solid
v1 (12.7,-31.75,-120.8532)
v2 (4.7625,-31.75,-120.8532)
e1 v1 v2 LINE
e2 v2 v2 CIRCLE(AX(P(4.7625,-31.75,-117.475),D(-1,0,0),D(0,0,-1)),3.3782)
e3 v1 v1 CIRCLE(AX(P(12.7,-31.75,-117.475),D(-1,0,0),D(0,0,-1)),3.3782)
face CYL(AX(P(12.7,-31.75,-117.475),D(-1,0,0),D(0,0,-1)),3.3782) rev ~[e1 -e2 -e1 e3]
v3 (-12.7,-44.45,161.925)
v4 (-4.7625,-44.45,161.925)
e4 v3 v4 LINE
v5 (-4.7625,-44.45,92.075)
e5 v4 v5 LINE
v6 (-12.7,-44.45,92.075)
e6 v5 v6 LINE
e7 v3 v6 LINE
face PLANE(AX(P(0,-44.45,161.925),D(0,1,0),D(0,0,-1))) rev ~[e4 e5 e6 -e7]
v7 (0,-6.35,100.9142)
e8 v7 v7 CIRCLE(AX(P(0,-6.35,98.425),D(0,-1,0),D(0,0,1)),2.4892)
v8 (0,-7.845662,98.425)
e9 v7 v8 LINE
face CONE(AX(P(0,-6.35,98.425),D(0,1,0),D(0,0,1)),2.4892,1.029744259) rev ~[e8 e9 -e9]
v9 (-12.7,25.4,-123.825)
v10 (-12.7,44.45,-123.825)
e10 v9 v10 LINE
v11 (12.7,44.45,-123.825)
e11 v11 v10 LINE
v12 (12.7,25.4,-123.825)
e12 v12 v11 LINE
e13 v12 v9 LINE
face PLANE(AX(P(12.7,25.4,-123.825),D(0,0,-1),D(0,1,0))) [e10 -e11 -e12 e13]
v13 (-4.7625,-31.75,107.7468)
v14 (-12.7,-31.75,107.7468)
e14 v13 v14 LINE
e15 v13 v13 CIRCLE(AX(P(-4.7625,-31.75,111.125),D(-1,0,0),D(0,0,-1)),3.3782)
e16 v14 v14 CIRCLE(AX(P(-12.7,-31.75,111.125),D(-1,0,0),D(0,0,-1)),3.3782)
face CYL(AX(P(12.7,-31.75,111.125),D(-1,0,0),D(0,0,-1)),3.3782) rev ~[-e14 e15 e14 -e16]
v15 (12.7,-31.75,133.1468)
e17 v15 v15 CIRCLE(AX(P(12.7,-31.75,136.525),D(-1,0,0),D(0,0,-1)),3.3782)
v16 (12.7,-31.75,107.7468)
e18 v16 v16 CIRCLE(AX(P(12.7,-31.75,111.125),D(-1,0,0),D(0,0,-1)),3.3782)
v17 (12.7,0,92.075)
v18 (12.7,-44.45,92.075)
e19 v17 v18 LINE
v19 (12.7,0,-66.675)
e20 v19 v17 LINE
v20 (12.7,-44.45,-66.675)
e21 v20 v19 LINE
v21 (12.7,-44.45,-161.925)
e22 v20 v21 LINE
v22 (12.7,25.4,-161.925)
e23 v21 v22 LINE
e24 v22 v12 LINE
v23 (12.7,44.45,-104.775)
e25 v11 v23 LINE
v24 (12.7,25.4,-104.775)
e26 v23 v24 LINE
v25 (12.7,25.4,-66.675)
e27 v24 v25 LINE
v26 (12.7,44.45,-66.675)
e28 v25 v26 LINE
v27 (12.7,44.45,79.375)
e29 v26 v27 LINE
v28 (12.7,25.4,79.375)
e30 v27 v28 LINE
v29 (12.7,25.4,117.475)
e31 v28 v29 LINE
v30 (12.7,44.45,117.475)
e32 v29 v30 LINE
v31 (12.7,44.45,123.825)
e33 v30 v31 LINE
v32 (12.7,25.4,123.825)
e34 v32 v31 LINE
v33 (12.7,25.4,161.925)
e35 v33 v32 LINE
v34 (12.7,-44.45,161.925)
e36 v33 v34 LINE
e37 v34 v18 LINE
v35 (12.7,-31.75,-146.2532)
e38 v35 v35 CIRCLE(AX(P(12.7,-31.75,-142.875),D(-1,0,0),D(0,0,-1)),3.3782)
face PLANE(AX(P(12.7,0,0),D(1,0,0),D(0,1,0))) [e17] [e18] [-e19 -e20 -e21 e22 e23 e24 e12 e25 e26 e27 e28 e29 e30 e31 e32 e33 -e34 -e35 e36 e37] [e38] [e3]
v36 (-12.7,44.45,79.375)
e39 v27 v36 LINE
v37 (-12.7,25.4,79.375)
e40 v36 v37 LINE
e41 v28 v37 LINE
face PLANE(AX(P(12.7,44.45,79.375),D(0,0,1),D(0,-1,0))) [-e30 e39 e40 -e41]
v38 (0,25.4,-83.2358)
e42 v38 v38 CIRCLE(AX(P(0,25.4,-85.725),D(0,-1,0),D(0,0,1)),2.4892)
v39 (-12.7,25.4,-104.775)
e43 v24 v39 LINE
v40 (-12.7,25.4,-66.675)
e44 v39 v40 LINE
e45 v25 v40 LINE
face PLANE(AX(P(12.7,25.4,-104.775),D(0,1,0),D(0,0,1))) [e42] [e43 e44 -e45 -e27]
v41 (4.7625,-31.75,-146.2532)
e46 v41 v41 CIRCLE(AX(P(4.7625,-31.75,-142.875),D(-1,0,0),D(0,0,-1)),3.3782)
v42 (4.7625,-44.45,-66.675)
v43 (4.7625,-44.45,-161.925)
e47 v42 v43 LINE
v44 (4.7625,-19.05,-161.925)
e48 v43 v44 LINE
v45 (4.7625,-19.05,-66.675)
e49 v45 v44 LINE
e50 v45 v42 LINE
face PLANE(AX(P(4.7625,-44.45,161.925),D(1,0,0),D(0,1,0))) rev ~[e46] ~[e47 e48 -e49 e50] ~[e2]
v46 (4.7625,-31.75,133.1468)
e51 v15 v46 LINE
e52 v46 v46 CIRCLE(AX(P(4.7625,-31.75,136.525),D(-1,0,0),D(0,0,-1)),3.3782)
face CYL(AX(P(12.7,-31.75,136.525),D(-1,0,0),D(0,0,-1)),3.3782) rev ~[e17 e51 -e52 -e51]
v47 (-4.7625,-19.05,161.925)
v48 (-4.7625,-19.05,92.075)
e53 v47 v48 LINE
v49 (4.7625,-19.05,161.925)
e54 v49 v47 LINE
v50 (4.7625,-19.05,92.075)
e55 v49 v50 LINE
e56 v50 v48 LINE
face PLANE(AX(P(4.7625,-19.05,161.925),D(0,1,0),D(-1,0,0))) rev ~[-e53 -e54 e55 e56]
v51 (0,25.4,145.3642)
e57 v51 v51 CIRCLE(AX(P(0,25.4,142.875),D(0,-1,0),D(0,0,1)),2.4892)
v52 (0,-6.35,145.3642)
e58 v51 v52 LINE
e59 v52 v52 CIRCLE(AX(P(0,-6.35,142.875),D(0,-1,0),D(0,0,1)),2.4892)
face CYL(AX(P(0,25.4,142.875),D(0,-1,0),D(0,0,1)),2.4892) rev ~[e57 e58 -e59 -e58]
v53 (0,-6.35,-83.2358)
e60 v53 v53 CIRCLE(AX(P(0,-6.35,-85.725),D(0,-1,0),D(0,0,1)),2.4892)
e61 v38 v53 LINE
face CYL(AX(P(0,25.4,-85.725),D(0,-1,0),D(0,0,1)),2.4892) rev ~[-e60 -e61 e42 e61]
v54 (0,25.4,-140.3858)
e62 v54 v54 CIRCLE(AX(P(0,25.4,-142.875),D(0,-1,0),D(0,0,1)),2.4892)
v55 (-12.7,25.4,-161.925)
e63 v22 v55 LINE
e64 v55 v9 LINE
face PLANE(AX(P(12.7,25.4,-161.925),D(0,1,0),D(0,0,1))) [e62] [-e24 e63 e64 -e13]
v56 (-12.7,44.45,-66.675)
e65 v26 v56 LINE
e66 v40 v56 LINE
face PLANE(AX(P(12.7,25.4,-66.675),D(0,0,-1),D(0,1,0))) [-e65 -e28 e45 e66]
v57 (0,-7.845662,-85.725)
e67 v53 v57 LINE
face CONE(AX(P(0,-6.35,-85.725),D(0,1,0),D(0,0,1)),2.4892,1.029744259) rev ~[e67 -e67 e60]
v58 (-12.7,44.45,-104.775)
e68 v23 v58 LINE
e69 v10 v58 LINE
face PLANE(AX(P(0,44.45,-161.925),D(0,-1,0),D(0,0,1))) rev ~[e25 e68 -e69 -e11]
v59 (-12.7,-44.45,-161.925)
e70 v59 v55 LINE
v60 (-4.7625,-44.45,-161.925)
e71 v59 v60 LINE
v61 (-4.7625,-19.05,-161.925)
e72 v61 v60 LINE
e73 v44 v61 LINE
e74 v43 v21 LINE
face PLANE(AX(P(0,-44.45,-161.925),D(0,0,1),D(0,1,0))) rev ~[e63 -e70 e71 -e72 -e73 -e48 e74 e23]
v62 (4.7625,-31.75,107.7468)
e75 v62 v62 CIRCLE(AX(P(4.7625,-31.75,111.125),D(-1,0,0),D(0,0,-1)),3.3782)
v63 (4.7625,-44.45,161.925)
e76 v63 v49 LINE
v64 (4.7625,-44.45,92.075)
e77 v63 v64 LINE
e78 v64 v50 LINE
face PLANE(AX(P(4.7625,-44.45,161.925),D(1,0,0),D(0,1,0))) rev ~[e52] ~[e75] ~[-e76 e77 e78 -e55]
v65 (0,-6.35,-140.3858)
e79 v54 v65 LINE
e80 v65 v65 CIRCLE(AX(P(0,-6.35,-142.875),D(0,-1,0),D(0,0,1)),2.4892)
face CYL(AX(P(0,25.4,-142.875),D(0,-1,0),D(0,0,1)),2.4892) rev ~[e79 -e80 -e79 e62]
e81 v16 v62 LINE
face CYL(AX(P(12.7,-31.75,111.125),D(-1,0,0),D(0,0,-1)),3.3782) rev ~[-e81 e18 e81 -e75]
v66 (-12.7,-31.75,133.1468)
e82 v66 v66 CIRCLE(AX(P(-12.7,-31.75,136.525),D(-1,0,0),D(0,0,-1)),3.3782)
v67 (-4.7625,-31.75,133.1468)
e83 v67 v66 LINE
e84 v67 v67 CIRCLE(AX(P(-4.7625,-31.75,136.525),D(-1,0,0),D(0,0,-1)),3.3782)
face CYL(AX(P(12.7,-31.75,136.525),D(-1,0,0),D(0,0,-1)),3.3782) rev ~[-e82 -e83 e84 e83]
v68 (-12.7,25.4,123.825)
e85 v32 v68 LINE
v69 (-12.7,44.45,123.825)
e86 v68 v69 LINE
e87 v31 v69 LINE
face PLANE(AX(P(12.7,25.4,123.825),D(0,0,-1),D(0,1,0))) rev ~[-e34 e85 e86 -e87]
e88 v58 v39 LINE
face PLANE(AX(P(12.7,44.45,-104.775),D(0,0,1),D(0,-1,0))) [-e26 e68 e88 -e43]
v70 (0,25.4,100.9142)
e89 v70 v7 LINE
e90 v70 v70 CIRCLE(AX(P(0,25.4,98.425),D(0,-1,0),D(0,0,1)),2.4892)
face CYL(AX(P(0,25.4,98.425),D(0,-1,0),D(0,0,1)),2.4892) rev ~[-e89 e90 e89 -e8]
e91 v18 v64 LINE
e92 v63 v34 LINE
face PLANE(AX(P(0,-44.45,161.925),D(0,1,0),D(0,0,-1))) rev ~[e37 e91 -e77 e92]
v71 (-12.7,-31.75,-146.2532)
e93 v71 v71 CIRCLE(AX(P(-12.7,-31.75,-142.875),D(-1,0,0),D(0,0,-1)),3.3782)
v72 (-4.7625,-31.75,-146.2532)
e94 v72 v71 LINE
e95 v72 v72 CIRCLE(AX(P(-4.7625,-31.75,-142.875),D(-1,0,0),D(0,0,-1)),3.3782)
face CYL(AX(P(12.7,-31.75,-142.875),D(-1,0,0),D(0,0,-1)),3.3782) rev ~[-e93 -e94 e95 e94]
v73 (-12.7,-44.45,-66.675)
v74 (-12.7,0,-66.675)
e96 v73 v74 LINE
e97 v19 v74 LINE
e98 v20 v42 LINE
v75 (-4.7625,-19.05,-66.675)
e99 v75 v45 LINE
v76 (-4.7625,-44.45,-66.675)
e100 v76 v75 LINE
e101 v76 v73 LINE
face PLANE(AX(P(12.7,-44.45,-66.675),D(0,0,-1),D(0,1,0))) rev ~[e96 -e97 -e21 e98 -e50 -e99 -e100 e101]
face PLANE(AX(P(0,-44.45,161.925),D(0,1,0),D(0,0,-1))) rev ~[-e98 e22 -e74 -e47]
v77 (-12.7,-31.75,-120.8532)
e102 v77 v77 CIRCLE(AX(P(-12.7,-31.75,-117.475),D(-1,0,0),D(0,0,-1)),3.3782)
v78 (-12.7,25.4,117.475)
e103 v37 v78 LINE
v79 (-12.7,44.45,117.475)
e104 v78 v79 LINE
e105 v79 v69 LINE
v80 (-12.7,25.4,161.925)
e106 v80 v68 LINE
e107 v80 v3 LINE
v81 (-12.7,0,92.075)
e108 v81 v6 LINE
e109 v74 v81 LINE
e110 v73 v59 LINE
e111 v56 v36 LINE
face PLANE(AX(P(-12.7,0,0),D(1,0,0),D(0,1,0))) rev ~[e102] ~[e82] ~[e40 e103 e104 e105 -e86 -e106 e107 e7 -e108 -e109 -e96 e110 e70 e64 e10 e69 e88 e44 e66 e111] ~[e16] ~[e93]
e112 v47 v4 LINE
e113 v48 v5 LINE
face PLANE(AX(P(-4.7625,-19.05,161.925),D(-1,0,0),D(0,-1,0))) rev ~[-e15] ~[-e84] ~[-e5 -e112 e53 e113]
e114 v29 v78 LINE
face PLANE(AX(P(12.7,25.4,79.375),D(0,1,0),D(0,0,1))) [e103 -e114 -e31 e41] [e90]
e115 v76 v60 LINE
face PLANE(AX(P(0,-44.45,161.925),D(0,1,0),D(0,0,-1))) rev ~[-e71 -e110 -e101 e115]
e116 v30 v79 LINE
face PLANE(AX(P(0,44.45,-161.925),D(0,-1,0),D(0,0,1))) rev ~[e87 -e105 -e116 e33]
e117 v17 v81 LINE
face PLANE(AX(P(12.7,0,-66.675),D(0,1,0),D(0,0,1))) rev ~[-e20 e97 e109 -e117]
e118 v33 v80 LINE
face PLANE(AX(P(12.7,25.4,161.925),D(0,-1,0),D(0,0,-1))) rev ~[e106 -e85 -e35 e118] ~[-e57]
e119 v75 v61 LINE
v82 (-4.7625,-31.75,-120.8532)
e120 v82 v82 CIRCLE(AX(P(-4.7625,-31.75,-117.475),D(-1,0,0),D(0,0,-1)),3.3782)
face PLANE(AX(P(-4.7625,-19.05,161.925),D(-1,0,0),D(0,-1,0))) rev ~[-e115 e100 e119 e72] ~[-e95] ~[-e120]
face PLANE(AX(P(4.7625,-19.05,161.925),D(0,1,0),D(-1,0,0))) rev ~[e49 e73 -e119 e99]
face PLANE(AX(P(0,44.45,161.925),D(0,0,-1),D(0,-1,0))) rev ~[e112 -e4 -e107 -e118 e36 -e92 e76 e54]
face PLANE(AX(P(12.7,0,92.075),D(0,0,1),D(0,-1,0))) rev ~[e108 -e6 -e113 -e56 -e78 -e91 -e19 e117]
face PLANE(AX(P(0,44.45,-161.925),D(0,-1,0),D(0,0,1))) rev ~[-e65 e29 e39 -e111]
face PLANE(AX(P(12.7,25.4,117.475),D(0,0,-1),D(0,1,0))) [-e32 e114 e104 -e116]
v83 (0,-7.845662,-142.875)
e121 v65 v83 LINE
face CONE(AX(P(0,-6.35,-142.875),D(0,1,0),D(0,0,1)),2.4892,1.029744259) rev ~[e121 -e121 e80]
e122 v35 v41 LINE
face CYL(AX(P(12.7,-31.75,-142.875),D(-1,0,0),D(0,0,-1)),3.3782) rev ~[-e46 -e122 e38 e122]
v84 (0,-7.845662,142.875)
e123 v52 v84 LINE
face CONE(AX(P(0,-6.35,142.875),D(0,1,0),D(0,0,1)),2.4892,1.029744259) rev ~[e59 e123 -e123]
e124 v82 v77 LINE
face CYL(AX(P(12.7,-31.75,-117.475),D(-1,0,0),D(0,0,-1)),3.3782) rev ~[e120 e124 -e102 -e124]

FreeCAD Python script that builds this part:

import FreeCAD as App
import Part
import Sketcher
Q = App.Units.Quantity

doc = App.newDocument("Part")
params = doc.addObject("Spreadsheet::Sheet", "Params")
for row, (alias, value) in enumerate([
    ("sketch1_width", "3.5 in"),
    ("sketch1_height", "12.75 in"),
    ("pad1_length", "1 in"),
    ("sketch2_width", "1.75 in"),
    ("sketch2_height", "6.25 in"),
    ("sketch3_height", "1 in"),
    ("sketch4_diameter", "0.266 in"),
    ("hole_diameter", "0.266 in"),
    ("sketch5_height", "1.5 in"),
    ("sketch5_width", "0.75 in"),
    ("sketch6_diameter", "0.196 in"),
    ("hole2_diameter", "0.196 in"),
    ("hole2_depth", "1.25 in"),
], start=1):
    params.set(f"A{row}", alias)
    params.set(f"B{row}", "=" + value)
    params.setAlias(f"B{row}", alias)

body = doc.addObject("PartDesign::Body", "Body")

sketch1 = body.newObject("Sketcher::SketchObject", "Sketch")
sketch1.AttachmentSupport = (doc.getObject("YZ_Plane"), [""])
sketch1.MapMode = "FlatFace"
sketch1.addGeometry([
    Part.LineSegment(App.Vector(44, 162, 0), App.Vector(-44, 162, 0)),
    Part.LineSegment(App.Vector(-44, 162, 0), App.Vector(-44, -162, 0)),
    Part.LineSegment(App.Vector(-44, -162, 0), App.Vector(44, -162, 0)),
    Part.LineSegment(App.Vector(44, -162, 0), App.Vector(44, 162, 0)),
], False)
sketch1.addConstraint([
    Sketcher.Constraint("Coincident", 0, 2, 1, 1),
    Sketcher.Constraint("Coincident", 1, 2, 2, 1),
    Sketcher.Constraint("Coincident", 2, 2, 3, 1),
    Sketcher.Constraint("Coincident", 3, 2, 0, 1),
    Sketcher.Constraint("Horizontal", 0),
    Sketcher.Constraint("Vertical", 1),
    Sketcher.Constraint("Horizontal", 2),
    Sketcher.Constraint("Vertical", 3),
    Sketcher.Constraint("Symmetric", 0, 2, 2, 2, -1, 1),
    Sketcher.Constraint("DistanceX", 0, 2, 0, 1, Q("3.5 in")),
    Sketcher.Constraint("DistanceY", 1, 2, 1, 1, Q("12.75 in")),
])
sketch1.setExpression("Constraints[9]", "Params.sketch1_width")
sketch1.setExpression("Constraints[10]", "Params.sketch1_height")
pad1 = body.newObject("PartDesign::Pad", "Pad")
pad1.Profile = sketch1
pad1.setExpression("Length", "Params.pad1_length")
pad1.Midplane = True

sketch2 = body.newObject("Sketcher::SketchObject", "Sketch001")
sketch2.AttachmentSupport = (doc.getObject("YZ_Plane"), [""])
sketch2.MapMode = "FlatFace"
sketch2.AttachmentOffset = App.Placement(App.Vector(0, 0, 0.5 * 25.4), App.Rotation())
sketch2.addGeometry([
    Part.LineSegment(App.Vector(0, 92, 0), App.Vector(-44, 92, 0)),
    Part.LineSegment(App.Vector(-44, 92, 0), App.Vector(-44, -67, 0)),
    Part.LineSegment(App.Vector(-44, -67, 0), App.Vector(0, -67, 0)),
    Part.LineSegment(App.Vector(0, -67, 0), App.Vector(0, 92, 0)),
], False)
sketch2.addConstraint([
    Sketcher.Constraint("Coincident", 0, 2, 1, 1),
    Sketcher.Constraint("Coincident", 1, 2, 2, 1),
    Sketcher.Constraint("Coincident", 2, 2, 3, 1),
    Sketcher.Constraint("Coincident", 3, 2, 0, 1),
    Sketcher.Constraint("Horizontal", 0),
    Sketcher.Constraint("Vertical", 1),
    Sketcher.Constraint("Horizontal", 2),
    Sketcher.Constraint("Vertical", 3),
    Sketcher.Constraint("PointOnObject", 2, 2, -2),
    Sketcher.Constraint("DistanceX", 0, 2, 0, 1, Q("1.75 in")),
    Sketcher.Constraint("DistanceY", 1, 2, 1, 1, Q("6.25 in")),
    Sketcher.Constraint("DistanceY", -1, 1, 0, 2, Q("3.625 in")),
])
sketch2.setExpression("Constraints[9]", "Params.sketch2_width")
sketch2.setExpression("Constraints[10]", "Params.sketch2_height")
pocket1 = body.newObject("PartDesign::Pocket", "Pocket")
pocket1.Profile = sketch2
pocket1.Type = "ThroughAll"

sketch3 = body.newObject("Sketcher::SketchObject", "Sketch002")
sketch3.AttachmentSupport = (doc.getObject("XY_Plane"), [""])
sketch3.MapMode = "FlatFace"
sketch3.AttachmentOffset = App.Placement(App.Vector(0, 0, 6.375 * 25.4), App.Rotation())
sketch3.addGeometry([
    Part.LineSegment(App.Vector(-5, -19, 0), App.Vector(-5, -44, 0)),
    Part.LineSegment(App.Vector(-5, -44, 0), App.Vector(5, -44, 0)),
    Part.LineSegment(App.Vector(5, -44, 0), App.Vector(5, -19, 0)),
    Part.LineSegment(App.Vector(5, -19, 0), App.Vector(-5, -19, 0)),
], False)
sketch3.addConstraint([
    Sketcher.Constraint("Coincident", 0, 2, 1, 1),
    Sketcher.Constraint("Coincident", 1, 2, 2, 1),
    Sketcher.Constraint("Coincident", 2, 2, 3, 1),
    Sketcher.Constraint("Coincident", 3, 2, 0, 1),
    Sketcher.Constraint("Vertical", 0),
    Sketcher.Constraint("Horizontal", 1),
    Sketcher.Constraint("Vertical", 2),
    Sketcher.Constraint("Horizontal", 3),
    Sketcher.Constraint("DistanceY", 0, 2, 0, 1, Q("1 in")),
    Sketcher.Constraint("DistanceX", 0, 2, -1, 1, Q("0.1875 in")),
    Sketcher.Constraint("DistanceX", -1, 1, 1, 2, Q("0.1875 in")),
    Sketcher.Constraint("DistanceY", 0, 2, -1, 1, Q("1.75 in")),
])
sketch3.setExpression("Constraints[8]", "Params.sketch3_height")
pocket2 = body.newObject("PartDesign::Pocket", "Pocket001")
pocket2.Profile = sketch3
pocket2.Type = "ThroughAll"

sketch4 = body.newObject("Sketcher::SketchObject", "Sketch003")
sketch4.AttachmentSupport = (doc.getObject("YZ_Plane"), [""])
sketch4.MapMode = "FlatFace"
sketch4.AttachmentOffset = App.Placement(App.Vector(0, 0, 0.5 * 25.4), App.Rotation())
sketch4.addGeometry([
    Part.Circle(App.Vector(-31.8, 136.5, 0), App.Vector(0, 0, 1), 3.4),
    Part.Circle(App.Vector(-31.8, 111.1, 0), App.Vector(0, 0, 1), 3.4),
    Part.Circle(App.Vector(-31.8, -117.5, 0), App.Vector(0, 0, 1), 3.4),
    Part.Circle(App.Vector(-31.8, -142.9, 0), App.Vector(0, 0, 1), 3.4),
], False)
sketch4.addConstraint([
    Sketcher.Constraint("Equal", 0, 1),
    Sketcher.Constraint("Equal", 1, 2),
    Sketcher.Constraint("Equal", 2, 3),
    Sketcher.Constraint("Vertical", 0, 3, 1, 3),
    Sketcher.Constraint("Vertical", 1, 3, 2, 3),
    Sketcher.Constraint("Vertical", 2, 3, 3, 3),
    Sketcher.Constraint("Diameter", 0, Q("0.266 in")),
    Sketcher.Constraint("DistanceY", 1, 3, 0, 3, Q("1 in")),
    Sketcher.Constraint("DistanceY", 2, 3, 1, 3, Q("9 in")),
    Sketcher.Constraint("DistanceY", 3, 3, 2, 3, Q("1 in")),
    Sketcher.Constraint("DistanceX", 0, 3, -1, 1, Q("1.25 in")),
    Sketcher.Constraint("DistanceY", -1, 1, 0, 3, Q("5.375 in")),
])
sketch4.setExpression("Constraints[6]", "Params.sketch4_diameter")
doc.recompute()
hole = body.newObject("PartDesign::Hole", "Hole")
hole.Profile = sketch4
hole.ThreadType = "None"
hole.setExpression("Diameter", "Params.hole_diameter")
hole.DepthType = "ThroughAll"

sketch5 = body.newObject("Sketcher::SketchObject", "Sketch004")
sketch5.AttachmentSupport = (doc.getObject("YZ_Plane"), [""])
sketch5.MapMode = "FlatFace"
sketch5.AttachmentOffset = App.Placement(App.Vector(0, 0, 0.5 * 25.4), App.Rotation())
sketch5.addGeometry([
    Part.LineSegment(App.Vector(44, 124, 0), App.Vector(44, 162, 0)),
    Part.LineSegment(App.Vector(44, 162, 0), App.Vector(25, 162, 0)),
    Part.LineSegment(App.Vector(25, 162, 0), App.Vector(25, 124, 0)),
    Part.LineSegment(App.Vector(25, 124, 0), App.Vector(44, 124, 0)),
    Part.LineSegment(App.Vector(44, -162, 0), App.Vector(44, -124, 0)),
    Part.LineSegment(App.Vector(44, -124, 0), App.Vector(25, -124, 0)),
    Part.LineSegment(App.Vector(25, -124, 0), App.Vector(25, -162, 0)),
    Part.LineSegment(App.Vector(25, -162, 0), App.Vector(44, -162, 0)),
    Part.LineSegment(App.Vector(44, -105, 0), App.Vector(44, -67, 0)),
    Part.LineSegment(App.Vector(44, -67, 0), App.Vector(25, -67, 0)),
    Part.LineSegment(App.Vector(25, -67, 0), App.Vector(25, -105, 0)),
    Part.LineSegment(App.Vector(25, -105, 0), App.Vector(44, -105, 0)),
    Part.LineSegment(App.Vector(44, 79, 0), App.Vector(44, 117, 0)),
    Part.LineSegment(App.Vector(44, 117, 0), App.Vector(25, 117, 0)),
    Part.LineSegment(App.Vector(25, 117, 0), App.Vector(25, 79, 0)),
    Part.LineSegment(App.Vector(25, 79, 0), App.Vector(44, 79, 0)),
], False)
sketch5.addConstraint([
    Sketcher.Constraint("Coincident", 0, 2, 1, 1),
    Sketcher.Constraint("Coincident", 1, 2, 2, 1),
    Sketcher.Constraint("Coincident", 2, 2, 3, 1),
    Sketcher.Constraint("Coincident", 3, 2, 0, 1),
    Sketcher.Constraint("Coincident", 4, 2, 5, 1),
    Sketcher.Constraint("Coincident", 5, 2, 6, 1),
    Sketcher.Constraint("Coincident", 6, 2, 7, 1),
    Sketcher.Constraint("Coincident", 7, 2, 4, 1),
    Sketcher.Constraint("Coincident", 8, 2, 9, 1),
    Sketcher.Constraint("Coincident", 9, 2, 10, 1),
    Sketcher.Constraint("Coincident", 10, 2, 11, 1),
    Sketcher.Constraint("Coincident", 11, 2, 8, 1),
    Sketcher.Constraint("Coincident", 12, 2, 13, 1),
    Sketcher.Constraint("Coincident", 13, 2, 14, 1),
    Sketcher.Constraint("Coincident", 14, 2, 15, 1),
    Sketcher.Constraint("Coincident", 15, 2, 12, 1),
    Sketcher.Constraint("Vertical", 0),
    Sketcher.Constraint("Horizontal", 1),
    Sketcher.Constraint("Vertical", 2),
    Sketcher.Constraint("Horizontal", 3),
    Sketcher.Constraint("Vertical", 4),
    Sketcher.Constraint("Horizontal", 5),
    Sketcher.Constraint("Vertical", 6),
    Sketcher.Constraint("Horizontal", 7),
    Sketcher.Constraint("Vertical", 8),
    Sketcher.Constraint("Horizontal", 9),
    Sketcher.Constraint("Vertical", 10),
    Sketcher.Constraint("Horizontal", 11),
    Sketcher.Constraint("Vertical", 12),
    Sketcher.Constraint("Horizontal", 13),
    Sketcher.Constraint("Vertical", 14),
    Sketcher.Constraint("Horizontal", 15),
    Sketcher.Constraint("Symmetric", 3, 2, 4, 2, -1),
    Sketcher.Constraint("Symmetric", 1, 2, 6, 2, -1),
    Sketcher.Constraint("Vertical", 7, 2, 8, 2),
    Sketcher.Constraint("Vertical", 6, 2, 9, 2),
    Sketcher.Constraint("Vertical", 11, 2, 12, 2),
    Sketcher.Constraint("Vertical", 10, 2, 13, 2),
    Sketcher.Constraint("Equal", 6, 8),
    Sketcher.Constraint("Equal", 10, 12),
    Sketcher.Constraint("DistanceY", 0, 1, 0, 2, Q("1.5 in")),
    Sketcher.Constraint("DistanceX", 1, 2, 1, 1, Q("0.75 in")),
    Sketcher.Constraint("DistanceY", 5, 2, 10, 2, Q("0.75 in")),
    Sketcher.Constraint("DistanceY", 12, 2, 3, 2, Q("0.25 in")),
    Sketcher.Constraint("DistanceX", -1, 1, 1, 2, Q("1 in")),
    Sketcher.Constraint("DistanceY", 8, 2, 3, 2, Q("7.5 in")),
])
sketch5.setExpression("Constraints[40]", "Params.sketch5_height")
sketch5.setExpression("Constraints[41]", "Params.sketch5_width")
pocket3 = body.newObject("PartDesign::Pocket", "Pocket002")
pocket3.Profile = sketch5
pocket3.Type = "ThroughAll"

sketch6 = body.newObject("Sketcher::SketchObject", "Sketch005")
sketch6.AttachmentSupport = (doc.getObject("XZ_Plane"), [""])
sketch6.MapMode = "FlatFace"
sketch6.AttachmentOffset = App.Placement(App.Vector(0, 0, -1 * 25.4), App.Rotation())
sketch6.addGeometry([
    Part.Circle(App.Vector(0, 142.9, 0), App.Vector(0, 0, 1), 2.5),
    Part.Circle(App.Vector(0, 98.4, 0), App.Vector(0, 0, 1), 2.5),
    Part.Circle(App.Vector(0, -85.7, 0), App.Vector(0, 0, 1), 2.5),
    Part.Circle(App.Vector(0, -142.9, 0), App.Vector(0, 0, 1), 2.5),
], False)
sketch6.addConstraint([
    Sketcher.Constraint("Equal", 0, 1),
    Sketcher.Constraint("Equal", 1, 2),
    Sketcher.Constraint("Equal", 2, 3),
    Sketcher.Constraint("Symmetric", 0, 3, 3, 3, -1, 1),
    Sketcher.Constraint("PointOnObject", 0, 3, -2),
    Sketcher.Constraint("PointOnObject", 1, 3, -2),
    Sketcher.Constraint("PointOnObject", 2, 3, -2),
    Sketcher.Constraint("Diameter", 0, Q("0.196 in")),
    Sketcher.Constraint("DistanceY", 2, 3, 0, 3, Q("9 in")),
    Sketcher.Constraint("DistanceY", 3, 3, 1, 3, Q("9.5 in")),
    Sketcher.Constraint("DistanceY", 1, 3, 0, 3, Q("1.75 in")),
])
sketch6.setExpression("Constraints[7]", "Params.sketch6_diameter")
doc.recompute()
hole2 = body.newObject("PartDesign::Hole", "Hole001")
hole2.Profile = sketch6
hole2.ThreadType = "None"
hole2.setExpression("Diameter", "Params.hole2_diameter")
hole2.DepthType = "Dimension"
hole2.setExpression("Depth", "Params.hole2_depth")
hole2.DrillPoint = "Angled"
hole2.DrillPointAngle = 118
hole2.Reversed = True

doc.recompute()
